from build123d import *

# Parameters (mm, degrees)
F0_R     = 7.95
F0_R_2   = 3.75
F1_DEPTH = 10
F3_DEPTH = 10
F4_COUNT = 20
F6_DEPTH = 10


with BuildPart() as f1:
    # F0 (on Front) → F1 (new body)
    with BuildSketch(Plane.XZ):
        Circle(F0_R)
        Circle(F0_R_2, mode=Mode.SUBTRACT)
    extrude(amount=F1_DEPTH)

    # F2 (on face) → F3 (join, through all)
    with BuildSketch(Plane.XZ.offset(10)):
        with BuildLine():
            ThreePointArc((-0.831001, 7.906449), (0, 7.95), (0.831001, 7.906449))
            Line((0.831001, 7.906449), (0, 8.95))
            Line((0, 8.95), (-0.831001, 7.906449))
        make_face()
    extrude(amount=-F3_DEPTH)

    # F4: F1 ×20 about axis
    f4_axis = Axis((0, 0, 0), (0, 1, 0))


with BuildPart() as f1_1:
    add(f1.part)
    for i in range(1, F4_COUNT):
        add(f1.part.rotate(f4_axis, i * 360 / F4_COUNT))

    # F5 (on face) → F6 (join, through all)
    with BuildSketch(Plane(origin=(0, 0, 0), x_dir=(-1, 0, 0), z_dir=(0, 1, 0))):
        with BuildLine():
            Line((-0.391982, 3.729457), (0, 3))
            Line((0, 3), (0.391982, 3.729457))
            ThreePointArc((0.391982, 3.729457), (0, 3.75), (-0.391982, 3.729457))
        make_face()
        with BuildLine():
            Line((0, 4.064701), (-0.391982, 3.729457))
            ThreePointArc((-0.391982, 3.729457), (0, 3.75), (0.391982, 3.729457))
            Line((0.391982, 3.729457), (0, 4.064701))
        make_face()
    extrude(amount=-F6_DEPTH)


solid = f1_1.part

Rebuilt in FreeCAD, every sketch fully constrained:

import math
import FreeCAD as App
import Part
import Sketcher

V = App.Vector
Q = App.Units.Quantity


def add_polygon(sketch, points):
    """Adds a closed chain of lines whose ends are joined by coincident constraints."""
    first, n = sketch.GeometryCount, len(points)
    for a, b in zip(points, points[1:] + points[:1]):
        sketch.addGeometry(Part.LineSegment(App.Vector(*a, 0), App.Vector(*b, 0)), False)
    for i in range(n):
        sketch.addConstraint(Sketcher.Constraint("Coincident", first + i, 2, first + (i + 1) % n, 1))

doc = App.newDocument("Part")
body = doc.addObject("PartDesign::Body", "Body")

# Sketch on XZ plane
sketch1 = doc.addObject("Sketcher::SketchObject", "Sketch")
body.addObject(sketch1)
sketch1.AttachmentSupport = (doc.XZ_Plane, [""])
sketch1.MapMode = "FlatFace"
sketch1.addGeometry([
    Part.Circle(V(0, 0, 0), V(0, 0, 1), 8),
    Part.Circle(V(0, 0, 0), V(0, 0, 1), 3.8),
], False)
sketch1.addConstraint([
    Sketcher.Constraint("Coincident", 0, 3, -1, 1),
    Sketcher.Constraint("Coincident", 1, 3, -1, 1),
    Sketcher.Constraint("Diameter", 0, Q("15.9 mm")),
    Sketcher.Constraint("Diameter", 1, Q("7.5 mm")),
])
pad1 = doc.addObject("PartDesign::Pad", "Pad")
body.addObject(pad1)
pad1.Profile = sketch1
pad1.Length = 10

# Sketch on XZ plane
sketch2 = doc.addObject("Sketcher::SketchObject", "Sketch001")
body.addObject(sketch2)
sketch2.AttachmentSupport = (doc.XZ_Plane, [""])
sketch2.MapMode = "FlatFace"
sketch2.AttachmentOffset = App.Placement(V(0, 0, 10), App.Rotation())
sketch2.addGeometry([
    Part.ArcOfCircle(Part.Circle(V(0, 0, 0), V(0, 0, 1), 7.9), math.radians(84), math.radians(96)),
    Part.LineSegment(V(0.8, 7.9, 0), V(0, 8.9, 0)),
    Part.LineSegment(V(0, 8.9, 0), V(-0.8, 7.9, 0)),
], False)
sketch2.addConstraint([
    Sketcher.Constraint("Coincident", 0, 1, 1, 1),
    Sketcher.Constraint("Coincident", 1, 2, 2, 1),
    Sketcher.Constraint("Coincident", 2, 2, 0, 2),
    Sketcher.Constraint("Symmetric", 0, 1, 2, 2, -2),
    Sketcher.Constraint("PointOnObject", 1, 2, -2),
    Sketcher.Constraint("DistanceY", -1, 1, 1, 2, Q("8.95 mm")),
    Sketcher.Constraint("DistanceX", -1, 1, 0, 1, Q("0.831001 mm")),
    Sketcher.Constraint("Radius", 0, Q("7.949982 mm")),
    Sketcher.Constraint("DistanceY", -1, 1, 0, 1, Q("7.906449 mm")),
])
pad2 = doc.addObject("PartDesign::Pad", "Pad001")
body.addObject(pad2)
pad2.Profile = sketch2
pad2.Length = 10
pad2.Reversed = True
body2 = doc.addObject("PartDesign::Body", "Body001")
doc.recompute()

body2.BaseFeature = body
doc.recompute()

body3 = doc.addObject("PartDesign::Body", "Body002")
body3.BaseFeature = body
body3.Placement = App.Placement(V(0, 0, 0), App.Rotation(V(0, 1, 0), 18))
boolean = doc.addObject("PartDesign::Boolean", "Boolean")
body2.addObject(boolean)
boolean.Type = "Fuse"
boolean.addObjects([body3])
doc.recompute()

body4 = doc.addObject("PartDesign::Body", "Body003")
body4.BaseFeature = body
body4.Placement = App.Placement(V(0, 0, 0), App.Rotation(V(0, 1, 0), 36))
boolean2 = doc.addObject("PartDesign::Boolean", "Boolean001")
body2.addObject(boolean2)
boolean2.Type = "Fuse"
boolean2.addObjects([body4])
doc.recompute()

body5 = doc.addObject("PartDesign::Body", "Body004")
body5.BaseFeature = body
body5.Placement = App.Placement(V(0, 0, 0), App.Rotation(V(0, 1, 0), 54))
boolean3 = doc.addObject("PartDesign::Boolean", "Boolean002")
body2.addObject(boolean3)
boolean3.Type = "Fuse"
boolean3.addObjects([body5])
doc.recompute()

body6 = doc.addObject("PartDesign::Body", "Body005")
body6.BaseFeature = body
body6.Placement = App.Placement(V(0, 0, 0), App.Rotation(V(0, 1, 0), 72))
boolean4 = doc.addObject("PartDesign::Boolean", "Boolean003")
body2.addObject(boolean4)
boolean4.Type = "Fuse"
boolean4.addObjects([body6])
doc.recompute()

body7 = doc.addObject("PartDesign::Body", "Body006")
body7.BaseFeature = body
body7.Placement = App.Placement(V(0, 0, 0), App.Rotation(V(0, 1, 0), 90))
boolean5 = doc.addObject("PartDesign::Boolean", "Boolean004")
body2.addObject(boolean5)
boolean5.Type = "Fuse"
boolean5.addObjects([body7])
doc.recompute()

body8 = doc.addObject("PartDesign::Body", "Body007")
body8.BaseFeature = body
body8.Placement = App.Placement(V(0, 0, 0), App.Rotation(V(0, 1, 0), 108))
boolean6 = doc.addObject("PartDesign::Boolean", "Boolean005")
body2.addObject(boolean6)
boolean6.Type = "Fuse"
boolean6.addObjects([body8])
doc.recompute()

body9 = doc.addObject("PartDesign::Body", "Body008")
body9.BaseFeature = body
body9.Placement = App.Placement(V(0, 0, 0), App.Rotation(V(0, 1, 0), 126))
boolean7 = doc.addObject("PartDesign::Boolean", "Boolean006")
body2.addObject(boolean7)
boolean7.Type = "Fuse"
boolean7.addObjects([body9])
doc.recompute()

body10 = doc.addObject("PartDesign::Body", "Body009")
body10.BaseFeature = body
body10.Placement = App.Placement(V(0, 0, 0), App.Rotation(V(0, 1, 0), 144))
boolean8 = doc.addObject("PartDesign::Boolean", "Boolean007")
body2.addObject(boolean8)
boolean8.Type = "Fuse"
boolean8.addObjects([body10])
doc.recompute()

body11 = doc.addObject("PartDesign::Body", "Body010")
body11.BaseFeature = body
body11.Placement = App.Placement(V(0, 0, 0), App.Rotation(V(0, 1, 0), 162))
boolean9 = doc.addObject("PartDesign::Boolean", "Boolean008")
body2.addObject(boolean9)
boolean9.Type = "Fuse"
boolean9.addObjects([body11])
doc.recompute()

body12 = doc.addObject("PartDesign::Body", "Body011")
body12.BaseFeature = body
body12.Placement = App.Placement(V(0, 0, 0), App.Rotation(V(0, 1, 0), 180))
boolean10 = doc.addObject("PartDesign::Boolean", "Boolean009")
body2.addObject(boolean10)
boolean10.Type = "Fuse"
boolean10.addObjects([body12])
doc.recompute()

body13 = doc.addObject("PartDesign::Body", "Body012")
body13.BaseFeature = body
body13.Placement = App.Placement(V(0, 0, 0), App.Rotation(V(0, 1, 0), 198))
boolean11 = doc.addObject("PartDesign::Boolean", "Boolean010")
body2.addObject(boolean11)
boolean11.Type = "Fuse"
boolean11.addObjects([body13])
doc.recompute()

body14 = doc.addObject("PartDesign::Body", "Body013")
body14.BaseFeature = body
body14.Placement = App.Placement(V(0, 0, 0), App.Rotation(V(0, 1, 0), 216))
boolean12 = doc.addObject("PartDesign::Boolean", "Boolean011")
body2.addObject(boolean12)
boolean12.Type = "Fuse"
boolean12.addObjects([body14])
doc.recompute()

body15 = doc.addObject("PartDesign::Body", "Body014")
body15.BaseFeature = body
body15.Placement = App.Placement(V(0, 0, 0), App.Rotation(V(0, 1, 0), 234))
boolean13 = doc.addObject("PartDesign::Boolean", "Boolean012")
body2.addObject(boolean13)
boolean13.Type = "Fuse"
boolean13.addObjects([body15])
doc.recompute()

body16 = doc.addObject("PartDesign::Body", "Body015")
body16.BaseFeature = body
body16.Placement = App.Placement(V(0, 0, 0), App.Rotation(V(0, 1, 0), 252))
boolean14 = doc.addObject("PartDesign::Boolean", "Boolean013")
body2.addObject(boolean14)
boolean14.Type = "Fuse"
boolean14.addObjects([body16])
doc.recompute()

body17 = doc.addObject("PartDesign::Body", "Body016")
body17.BaseFeature = body
body17.Placement = App.Placement(V(0, 0, 0), App.Rotation(V(0, 1, 0), 270))
boolean15 = doc.addObject("PartDesign::Boolean", "Boolean014")
body2.addObject(boolean15)
boolean15.Type = "Fuse"
boolean15.addObjects([body17])
doc.recompute()

body18 = doc.addObject("PartDesign::Body", "Body017")
body18.BaseFeature = body
body18.Placement = App.Placement(V(0, 0, 0), App.Rotation(V(0, 1, 0), 288))
boolean16 = doc.addObject("PartDesign::Boolean", "Boolean015")
body2.addObject(boolean16)
boolean16.Type = "Fuse"
boolean16.addObjects([body18])
doc.recompute()

body19 = doc.addObject("PartDesign::Body", "Body018")
body19.BaseFeature = body
body19.Placement = App.Placement(V(0, 0, 0), App.Rotation(V(0, 1, 0), 306))
boolean17 = doc.addObject("PartDesign::Boolean", "Boolean016")
body2.addObject(boolean17)
boolean17.Type = "Fuse"
boolean17.addObjects([body19])
doc.recompute()

body20 = doc.addObject("PartDesign::Body", "Body019")
body20.BaseFeature = body
body20.Placement = App.Placement(V(0, 0, 0), App.Rotation(V(0, 1, 0), 324))
boolean18 = doc.addObject("PartDesign::Boolean", "Boolean017")
body2.addObject(boolean18)
boolean18.Type = "Fuse"
boolean18.addObjects([body20])
doc.recompute()

body.Placement = App.Placement(V(0, 0, 0), App.Rotation(V(0, 1, 0), 342))
boolean19 = doc.addObject("PartDesign::Boolean", "Boolean018")
body2.addObject(boolean19)
boolean19.Type = "Fuse"
boolean19.addObjects([body])

# Sketch on XZ plane
sketch3 = doc.addObject("Sketcher::SketchObject", "Sketch002")
body2.addObject(sketch3)
sketch3.AttachmentSupport = (doc.getObject("XZ_Plane001"), [""])
sketch3.MapMode = "FlatFace"
add_polygon(sketch3, [(0.4, 3.7), (0, 3), (-0.4, 3.7), (0, 4.1)])  # lines 0-3
sketch3.addConstraint([
    Sketcher.Constraint("Symmetric", 1, 2, 3, 2, -2),
    Sketcher.Constraint("PointOnObject", 0, 2, -2),
    Sketcher.Constraint("PointOnObject", 2, 2, -2),
    Sketcher.Constraint("DistanceY", -1, 1, 0, 2, Q("3 mm")),
    Sketcher.Constraint("DistanceY", -1, 1, 2, 2, Q("4.064701 mm")),
    Sketcher.Constraint("Distance", 2, Q("0.515789 mm")),
    Sketcher.Constraint("Distance", 0, Q("0.828105 mm")),
])
pad3 = doc.addObject("PartDesign::Pad", "Pad002")
body2.addObject(pad3)
pad3.Profile = sketch3
pad3.Length = 10

doc.recompute()
